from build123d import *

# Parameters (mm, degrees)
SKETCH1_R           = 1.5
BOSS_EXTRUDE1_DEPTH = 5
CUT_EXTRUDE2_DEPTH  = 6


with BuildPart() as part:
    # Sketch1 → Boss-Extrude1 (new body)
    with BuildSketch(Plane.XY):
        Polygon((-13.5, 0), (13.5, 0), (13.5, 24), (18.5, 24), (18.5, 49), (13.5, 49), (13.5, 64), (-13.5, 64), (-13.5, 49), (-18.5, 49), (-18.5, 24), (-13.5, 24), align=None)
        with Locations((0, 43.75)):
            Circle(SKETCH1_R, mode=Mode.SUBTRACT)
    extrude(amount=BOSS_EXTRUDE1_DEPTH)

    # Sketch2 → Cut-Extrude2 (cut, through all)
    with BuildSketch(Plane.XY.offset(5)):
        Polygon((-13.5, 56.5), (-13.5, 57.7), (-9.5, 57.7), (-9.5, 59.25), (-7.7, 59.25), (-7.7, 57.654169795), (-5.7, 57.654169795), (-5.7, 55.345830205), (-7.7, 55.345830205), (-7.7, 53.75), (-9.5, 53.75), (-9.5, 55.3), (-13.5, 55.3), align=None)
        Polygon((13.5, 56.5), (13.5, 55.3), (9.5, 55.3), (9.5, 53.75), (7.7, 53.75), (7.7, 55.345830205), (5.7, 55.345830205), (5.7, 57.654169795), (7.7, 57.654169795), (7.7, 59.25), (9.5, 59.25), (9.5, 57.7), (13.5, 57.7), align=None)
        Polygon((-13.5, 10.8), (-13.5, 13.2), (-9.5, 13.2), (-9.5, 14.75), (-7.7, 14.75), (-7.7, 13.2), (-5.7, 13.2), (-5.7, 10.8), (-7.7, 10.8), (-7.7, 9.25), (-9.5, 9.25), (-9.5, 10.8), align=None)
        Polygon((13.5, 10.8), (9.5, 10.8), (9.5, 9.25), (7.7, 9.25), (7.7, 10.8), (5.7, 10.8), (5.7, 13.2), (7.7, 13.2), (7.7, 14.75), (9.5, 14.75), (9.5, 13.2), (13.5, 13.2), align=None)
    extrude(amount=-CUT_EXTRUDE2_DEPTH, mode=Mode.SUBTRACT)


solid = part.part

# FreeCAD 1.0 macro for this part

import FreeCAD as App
import Part
import Sketcher

doc = App.newDocument("Part")
body = doc.addObject("PartDesign::Body", "Body")

sketch1 = body.newObject("Sketcher::SketchObject", "Sketch")
sketch1.AttachmentSupport = (doc.getObject("XY_Plane"), [""])
sketch1.MapMode = "FlatFace"
sketch1.addGeometry(Part.LineSegment(App.Vector(-13.5, 0, 0), App.Vector(13.5, 0, 0)), False)
sketch1.addGeometry(Part.LineSegment(App.Vector(13.5, 0, 0), App.Vector(13.5, 24, 0)), False)
sketch1.addGeometry(Part.LineSegment(App.Vector(13.5, 24, 0), App.Vector(18.5, 24, 0)), False)
sketch1.addGeometry(Part.LineSegment(App.Vector(18.5, 24, 0), App.Vector(18.5, 49, 0)), False)
sketch1.addGeometry(Part.LineSegment(App.Vector(18.5, 49, 0), App.Vector(13.5, 49, 0)), False)
sketch1.addGeometry(Part.LineSegment(App.Vector(13.5, 49, 0), App.Vector(13.5, 64, 0)), False)
sketch1.addGeometry(Part.LineSegment(App.Vector(13.5, 64, 0), App.Vector(-13.5, 64, 0)), False)
sketch1.addGeometry(Part.LineSegment(App.Vector(-13.5, 64, 0), App.Vector(-13.5, 49, 0)), False)
sketch1.addGeometry(Part.LineSegment(App.Vector(-13.5, 49, 0), App.Vector(-18.5, 49, 0)), False)
sketch1.addGeometry(Part.LineSegment(App.Vector(-18.5, 49, 0), App.Vector(-18.5, 24, 0)), False)
sketch1.addGeometry(Part.LineSegment(App.Vector(-18.5, 24, 0), App.Vector(-13.5, 24, 0)), False)
sketch1.addGeometry(Part.LineSegment(App.Vector(-13.5, 24, 0), App.Vector(-13.5, 0, 0)), False)
sketch1.addGeometry(Part.Circle(App.Vector(0, 43.8, 0), App.Vector(0, 0, 1), 1.5), False)
sketch1.addConstraint(Sketcher.Constraint("Coincident", 0, 2, 1, 1))
sketch1.addConstraint(Sketcher.Constraint("Coincident", 1, 2, 2, 1))
sketch1.addConstraint(Sketcher.Constraint("Coincident", 2, 2, 3, 1))
sketch1.addConstraint(Sketcher.Constraint("Coincident", 3, 2, 4, 1))
sketch1.addConstraint(Sketcher.Constraint("Coincident", 4, 2, 5, 1))
sketch1.addConstraint(Sketcher.Constraint("Coincident", 5, 2, 6, 1))
sketch1.addConstraint(Sketcher.Constraint("Coincident", 6, 2, 7, 1))
sketch1.addConstraint(Sketcher.Constraint("Coincident", 7, 2, 8, 1))
sketch1.addConstraint(Sketcher.Constraint("Coincident", 8, 2, 9, 1))
sketch1.addConstraint(Sketcher.Constraint("Coincident", 9, 2, 10, 1))
sketch1.addConstraint(Sketcher.Constraint("Coincident", 10, 2, 11, 1))
sketch1.addConstraint(Sketcher.Constraint("Coincident", 11, 2, 0, 1))
sketch1.addConstraint(Sketcher.Constraint("Horizontal", 0))
sketch1.addConstraint(Sketcher.Constraint("Vertical", 1))
sketch1.addConstraint(Sketcher.Constraint("Horizontal", 2))
sketch1.addConstraint(Sketcher.Constraint("Vertical", 3))
sketch1.addConstraint(Sketcher.Constraint("Horizontal", 4))
sketch1.addConstraint(Sketcher.Constraint("Vertical", 5))
sketch1.addConstraint(Sketcher.Constraint("Horizontal", 6))
sketch1.addConstraint(Sketcher.Constraint("Vertical", 7))
sketch1.addConstraint(Sketcher.Constraint("Horizontal", 8))
sketch1.addConstraint(Sketcher.Constraint("Vertical", 9))
sketch1.addConstraint(Sketcher.Constraint("Horizontal", 10))
sketch1.addConstraint(Sketcher.Constraint("Vertical", 11))
sketch1.addConstraint(Sketcher.Constraint("Symmetric", 0, 2, 11, 2, -1, 1))
sketch1.addConstraint(Sketcher.Constraint("Symmetric", 4, 2, 7, 2, -2))
sketch1.addConstraint(Sketcher.Constraint("Symmetric", 2, 2, 9, 2, -2))
sketch1.addConstraint(Sketcher.Constraint("PointOnObject", 12, 3, -2))
sketch1.addConstraint(Sketcher.Constraint("Vertical", 1, 2, 4, 2))
sketch1.addConstraint(Sketcher.Constraint("Diameter", 12, 3.0))
sketch1.addConstraint(Sketcher.Constraint("DistanceX", 0, 1, 0, 2, 27.0))
sketch1.addConstraint(Sketcher.Constraint("DistanceX", 2, 1, 2, 2, 5.0))
sketch1.addConstraint(Sketcher.Constraint("DistanceY", 1, 1, 1, 2, 24.0))
sketch1.addConstraint(Sketcher.Constraint("DistanceY", 3, 1, 3, 2, 25.0))
sketch1.addConstraint(Sketcher.Constraint("DistanceY", 5, 1, 5, 2, 15.0))
sketch1.addConstraint(Sketcher.Constraint("DistanceY", -1, 1, 12, 3, 43.75))
pad1 = body.newObject("PartDesign::Pad", "Pad")
pad1.Profile = sketch1
pad1.Length = 5

sketch2 = body.newObject("Sketcher::SketchObject", "Sketch001")
sketch2.AttachmentSupport = (doc.getObject("XY_Plane"), [""])
sketch2.MapMode = "FlatFace"
sketch2.AttachmentOffset = App.Placement(App.Vector(0, 0, 5), App.Rotation())
sketch2.addGeometry(Part.LineSegment(App.Vector(-13.5, 57.7, 0), App.Vector(-13.5, 55.3, 0)), False)
sketch2.addGeometry(Part.LineSegment(App.Vector(-13.5, 55.3, 0), App.Vector(-9.5, 55.3, 0)), False)
sketch2.addGeometry(Part.LineSegment(App.Vector(-9.5, 55.3, 0), App.Vector(-9.5, 53.8, 0)), False)
sketch2.addGeometry(Part.LineSegment(App.Vector(-9.5, 53.8, 0), App.Vector(-7.7, 53.8, 0)), False)
sketch2.addGeometry(Part.LineSegment(App.Vector(-7.7, 53.8, 0), App.Vector(-7.7, 55.3, 0)), False)
sketch2.addGeometry(Part.LineSegment(App.Vector(-7.7, 55.3, 0), App.Vector(-5.7, 55.3, 0)), False)
sketch2.addGeometry(Part.LineSegment(App.Vector(-5.7, 55.3, 0), App.Vector(-5.7, 57.7, 0)), False)
sketch2.addGeometry(Part.LineSegment(App.Vector(-5.7, 57.7, 0), App.Vector(-7.7, 57.7, 0)), False)
sketch2.addGeometry(Part.LineSegment(App.Vector(-7.7, 57.7, 0), App.Vector(-7.7, 59.2, 0)), False)
sketch2.addGeometry(Part.LineSegment(App.Vector(-7.7, 59.2, 0), App.Vector(-9.5, 59.2, 0)), False)
sketch2.addGeometry(Part.LineSegment(App.Vector(-9.5, 59.2, 0), App.Vector(-9.5, 57.7, 0)), False)
sketch2.addGeometry(Part.LineSegment(App.Vector(-9.5, 57.7, 0), App.Vector(-13.5, 57.7, 0)), False)
sketch2.addGeometry(Part.LineSegment(App.Vector(13.5, 55.3, 0), App.Vector(13.5, 57.7, 0)), False)
sketch2.addGeometry(Part.LineSegment(App.Vector(13.5, 57.7, 0), App.Vector(9.5, 57.7, 0)), False)
sketch2.addGeometry(Part.LineSegment(App.Vector(9.5, 57.7, 0), App.Vector(9.5, 59.2, 0)), False)
sketch2.addGeometry(Part.LineSegment(App.Vector(9.5, 59.2, 0), App.Vector(7.7, 59.2, 0)), False)
sketch2.addGeometry(Part.LineSegment(App.Vector(7.7, 59.2, 0), App.Vector(7.7, 57.7, 0)), False)
sketch2.addGeometry(Part.LineSegment(App.Vector(7.7, 57.7, 0), App.Vector(5.7, 57.7, 0)), False)
sketch2.addGeometry(Part.LineSegment(App.Vector(5.7, 57.7, 0), App.Vector(5.7, 55.3, 0)), False)
sketch2.addGeometry(Part.LineSegment(App.Vector(5.7, 55.3, 0), App.Vector(7.7, 55.3, 0)), False)
sketch2.addGeometry(Part.LineSegment(App.Vector(7.7, 55.3, 0), App.Vector(7.7, 53.8, 0)), False)
sketch2.addGeometry(Part.LineSegment(App.Vector(7.7, 53.8, 0), App.Vector(9.5, 53.8, 0)), False)
sketch2.addGeometry(Part.LineSegment(App.Vector(9.5, 53.8, 0), App.Vector(9.5, 55.3, 0)), False)
sketch2.addGeometry(Part.LineSegment(App.Vector(9.5, 55.3, 0), App.Vector(13.5, 55.3, 0)), False)
sketch2.addGeometry(Part.LineSegment(App.Vector(-13.5, 13.2, 0), App.Vector(-13.5, 10.8, 0)), False)
sketch2.addGeometry(Part.LineSegment(App.Vector(-13.5, 10.8, 0), App.Vector(-9.5, 10.8, 0)), False)
sketch2.addGeometry(Part.LineSegment(App.Vector(-9.5, 10.8, 0), App.Vector(-9.5, 9.2, 0)), False)
sketch2.addGeometry(Part.LineSegment(App.Vector(-9.5, 9.2, 0), App.Vector(-7.7, 9.2, 0)), False)
sketch2.addGeometry(Part.LineSegment(App.Vector(-7.7, 9.2, 0), App.Vector(-7.7, 10.8, 0)), False)
sketch2.addGeometry(Part.LineSegment(App.Vector(-7.7, 10.8, 0), App.Vector(-5.7, 10.8, 0)), False)
sketch2.addGeometry(Part.LineSegment(App.Vector(-5.7, 10.8, 0), App.Vector(-5.7, 13.2, 0)), False)
sketch2.addGeometry(Part.LineSegment(App.Vector(-5.7, 13.2, 0), App.Vector(-7.7, 13.2, 0)), False)
sketch2.addGeometry(Part.LineSegment(App.Vector(-7.7, 13.2, 0), App.Vector(-7.7, 14.8, 0)), False)
sketch2.addGeometry(Part.LineSegment(App.Vector(-7.7, 14.8, 0), App.Vector(-9.5, 14.8, 0)), False)
sketch2.addGeometry(Part.LineSegment(App.Vector(-9.5, 14.8, 0), App.Vector(-9.5, 13.2, 0)), False)
sketch2.addGeometry(Part.LineSegment(App.Vector(-9.5, 13.2, 0), App.Vector(-13.5, 13.2, 0)), False)
sketch2.addGeometry(Part.LineSegment(App.Vector(9.5, 10.8, 0), App.Vector(13.5, 10.8, 0)), False)
sketch2.addGeometry(Part.LineSegment(App.Vector(13.5, 10.8, 0), App.Vector(13.5, 13.2, 0)), False)
sketch2.addGeometry(Part.LineSegment(App.Vector(13.5, 13.2, 0), App.Vector(9.5, 13.2, 0)), False)
sketch2.addGeometry(Part.LineSegment(App.Vector(9.5, 13.2, 0), App.Vector(9.5, 14.8, 0)), False)
sketch2.addGeometry(Part.LineSegment(App.Vector(9.5, 14.8, 0), App.Vector(7.7, 14.8, 0)), False)
sketch2.addGeometry(Part.LineSegment(App.Vector(7.7, 14.8, 0), App.Vector(7.7, 13.2, 0)), False)
sketch2.addGeometry(Part.LineSegment(App.Vector(7.7, 13.2, 0), App.Vector(5.7, 13.2, 0)), False)
sketch2.addGeometry(Part.LineSegment(App.Vector(5.7, 13.2, 0), App.Vector(5.7, 10.8, 0)), False)
sketch2.addGeometry(Part.LineSegment(App.Vector(5.7, 10.8, 0), App.Vector(7.7, 10.8, 0)), False)
sketch2.addGeometry(Part.LineSegment(App.Vector(7.7, 10.8, 0), App.Vector(7.7, 9.2, 0)), False)
sketch2.addGeometry(Part.LineSegment(App.Vector(7.7, 9.2, 0), App.Vector(9.5, 9.2, 0)), False)
sketch2.addGeometry(Part.LineSegment(App.Vector(9.5, 9.2, 0), App.Vector(9.5, 10.8, 0)), False)
sketch2.addConstraint(Sketcher.Constraint("Coincident", 0, 2, 1, 1))
sketch2.addConstraint(Sketcher.Constraint("Coincident", 1, 2, 2, 1))
sketch2.addConstraint(Sketcher.Constraint("Coincident", 2, 2, 3, 1))
sketch2.addConstraint(Sketcher.Constraint("Coincident", 3, 2, 4, 1))
sketch2.addConstraint(Sketcher.Constraint("Coincident", 4, 2, 5, 1))
sketch2.addConstraint(Sketcher.Constraint("Coincident", 5, 2, 6, 1))
sketch2.addConstraint(Sketcher.Constraint("Coincident", 6, 2, 7, 1))
sketch2.addConstraint(Sketcher.Constraint("Coincident", 7, 2, 8, 1))
sketch2.addConstraint(Sketcher.Constraint("Coincident", 8, 2, 9, 1))
sketch2.addConstraint(Sketcher.Constraint("Coincident", 9, 2, 10, 1))
sketch2.addConstraint(Sketcher.Constraint("Coincident", 10, 2, 11, 1))
sketch2.addConstraint(Sketcher.Constraint("Coincident", 11, 2, 0, 1))
sketch2.addConstraint(Sketcher.Constraint("Coincident", 12, 2, 13, 1))
sketch2.addConstraint(Sketcher.Constraint("Coincident", 13, 2, 14, 1))
sketch2.addConstraint(Sketcher.Constraint("Coincident", 14, 2, 15, 1))
sketch2.addConstraint(Sketcher.Constraint("Coincident", 15, 2, 16, 1))
sketch2.addConstraint(Sketcher.Constraint("Coincident", 16, 2, 17, 1))
sketch2.addConstraint(Sketcher.Constraint("Coincident", 17, 2, 18, 1))
sketch2.addConstraint(Sketcher.Constraint("Coincident", 18, 2, 19, 1))
sketch2.addConstraint(Sketcher.Constraint("Coincident", 19, 2, 20, 1))
sketch2.addConstraint(Sketcher.Constraint("Coincident", 20, 2, 21, 1))
sketch2.addConstraint(Sketcher.Constraint("Coincident", 21, 2, 22, 1))
sketch2.addConstraint(Sketcher.Constraint("Coincident", 22, 2, 23, 1))
sketch2.addConstraint(Sketcher.Constraint("Coincident", 23, 2, 12, 1))
sketch2.addConstraint(Sketcher.Constraint("Coincident", 24, 2, 25, 1))
sketch2.addConstraint(Sketcher.Constraint("Coincident", 25, 2, 26, 1))
sketch2.addConstraint(Sketcher.Constraint("Coincident", 26, 2, 27, 1))
sketch2.addConstraint(Sketcher.Constraint("Coincident", 27, 2, 28, 1))
sketch2.addConstraint(Sketcher.Constraint("Coincident", 28, 2, 29, 1))
sketch2.addConstraint(Sketcher.Constraint("Coincident", 29, 2, 30, 1))
sketch2.addConstraint(Sketcher.Constraint("Coincident", 30, 2, 31, 1))
sketch2.addConstraint(Sketcher.Constraint("Coincident", 31, 2, 32, 1))
sketch2.addConstraint(Sketcher.Constraint("Coincident", 32, 2, 33, 1))
sketch2.addConstraint(Sketcher.Constraint("Coincident", 33, 2, 34, 1))
sketch2.addConstraint(Sketcher.Constraint("Coincident", 34, 2, 35, 1))
sketch2.addConstraint(Sketcher.Constraint("Coincident", 35, 2, 24, 1))
sketch2.addConstraint(Sketcher.Constraint("Coincident", 36, 2, 37, 1))
sketch2.addConstraint(Sketcher.Constraint("Coincident", 37, 2, 38, 1))
sketch2.addConstraint(Sketcher.Constraint("Coincident", 38, 2, 39, 1))
sketch2.addConstraint(Sketcher.Constraint("Coincident", 39, 2, 40, 1))
sketch2.addConstraint(Sketcher.Constraint("Coincident", 40, 2, 41, 1))
sketch2.addConstraint(Sketcher.Constraint("Coincident", 41, 2, 42, 1))
sketch2.addConstraint(Sketcher.Constraint("Coincident", 42, 2, 43, 1))
sketch2.addConstraint(Sketcher.Constraint("Coincident", 43, 2, 44, 1))
sketch2.addConstraint(Sketcher.Constraint("Coincident", 44, 2, 45, 1))
sketch2.addConstraint(Sketcher.Constraint("Coincident", 45, 2, 46, 1))
sketch2.addConstraint(Sketcher.Constraint("Coincident", 46, 2, 47, 1))
sketch2.addConstraint(Sketcher.Constraint("Coincident", 47, 2, 36, 1))
sketch2.addConstraint(Sketcher.Constraint("Vertical", 0))
sketch2.addConstraint(Sketcher.Constraint("Horizontal", 1))
sketch2.addConstraint(Sketcher.Constraint("Vertical", 2))
sketch2.addConstraint(Sketcher.Constraint("Horizontal", 3))
sketch2.addConstraint(Sketcher.Constraint("Vertical", 4))
sketch2.addConstraint(Sketcher.Constraint("Horizontal", 5))
sketch2.addConstraint(Sketcher.Constraint("Vertical", 6))
sketch2.addConstraint(Sketcher.Constraint("Horizontal", 7))
sketch2.addConstraint(Sketcher.Constraint("Vertical", 8))
sketch2.addConstraint(Sketcher.Constraint("Horizontal", 9))
sketch2.addConstraint(Sketcher.Constraint("Vertical", 10))
sketch2.addConstraint(Sketcher.Constraint("Horizontal", 11))
sketch2.addConstraint(Sketcher.Constraint("Vertical", 12))
sketch2.addConstraint(Sketcher.Constraint("Horizontal", 13))
sketch2.addConstraint(Sketcher.Constraint("Vertical", 14))
sketch2.addConstraint(Sketcher.Constraint("Horizontal", 15))
sketch2.addConstraint(Sketcher.Constraint("Vertical", 16))
sketch2.addConstraint(Sketcher.Constraint("Horizontal", 17))
sketch2.addConstraint(Sketcher.Constraint("Vertical", 18))
sketch2.addConstraint(Sketcher.Constraint("Horizontal", 19))
sketch2.addConstraint(Sketcher.Constraint("Vertical", 20))
sketch2.addConstraint(Sketcher.Constraint("Horizontal", 21))
sketch2.addConstraint(Sketcher.Constraint("Vertical", 22))
sketch2.addConstraint(Sketcher.Constraint("Horizontal", 23))
sketch2.addConstraint(Sketcher.Constraint("Vertical", 24))
sketch2.addConstraint(Sketcher.Constraint("Horizontal", 25))
sketch2.addConstraint(Sketcher.Constraint("Vertical", 26))
sketch2.addConstraint(Sketcher.Constraint("Horizontal", 27))
sketch2.addConstraint(Sketcher.Constraint("Vertical", 28))
sketch2.addConstraint(Sketcher.Constraint("Horizontal", 29))
sketch2.addConstraint(Sketcher.Constraint("Vertical", 30))
sketch2.addConstraint(Sketcher.Constraint("Horizontal", 31))
sketch2.addConstraint(Sketcher.Constraint("Vertical", 32))
sketch2.addConstraint(Sketcher.Constraint("Horizontal", 33))
sketch2.addConstraint(Sketcher.Constraint("Vertical", 34))
sketch2.addConstraint(Sketcher.Constraint("Horizontal", 35))
sketch2.addConstraint(Sketcher.Constraint("Horizontal", 36))
sketch2.addConstraint(Sketcher.Constraint("Vertical", 37))
sketch2.addConstraint(Sketcher.Constraint("Horizontal", 38))
sketch2.addConstraint(Sketcher.Constraint("Vertical", 39))
sketch2.addConstraint(Sketcher.Constraint("Horizontal", 40))
sketch2.addConstraint(Sketcher.Constraint("Vertical", 41))
sketch2.addConstraint(Sketcher.Constraint("Horizontal", 42))
sketch2.addConstraint(Sketcher.Constraint("Vertical", 43))
sketch2.addConstraint(Sketcher.Constraint("Horizontal", 44))
sketch2.addConstraint(Sketcher.Constraint("Vertical", 45))
sketch2.addConstraint(Sketcher.Constraint("Horizontal", 46))
sketch2.addConstraint(Sketcher.Constraint("Vertical", 47))
sketch2.addConstraint(Sketcher.Constraint("Symmetric", 11, 2, 12, 2, -2))
sketch2.addConstraint(Sketcher.Constraint("Symmetric", 9, 2, 14, 2, -2))
sketch2.addConstraint(Sketcher.Constraint("Symmetric", 7, 2, 16, 2, -2))
sketch2.addConstraint(Sketcher.Constraint("Symmetric", 5, 2, 18, 2, -2))
sketch2.addConstraint(Sketcher.Constraint("Symmetric", 3, 2, 20, 2, -2))
sketch2.addConstraint(Sketcher.Constraint("Symmetric", 1, 2, 22, 2, -2))
sketch2.addConstraint(Sketcher.Constraint("Symmetric", 24, 2, 36, 2, -2))
sketch2.addConstraint(Sketcher.Constraint("Symmetric", 34, 2, 38, 2, -2))
sketch2.addConstraint(Sketcher.Constraint("Symmetric", 32, 2, 40, 2, -2))
sketch2.addConstraint(Sketcher.Constraint("Symmetric", 30, 2, 42, 2, -2))
sketch2.addConstraint(Sketcher.Constraint("Symmetric", 28, 2, 44, 2, -2))
sketch2.addConstraint(Sketcher.Constraint("Symmetric", 26, 2, 46, 2, -2))
sketch2.addConstraint(Sketcher.Constraint("Horizontal", 25, 2, 28, 2))
sketch2.addConstraint(Sketcher.Constraint("Horizontal", 31, 2, 34, 2))
sketch2.addConstraint(Sketcher.Constraint("Vertical", 4, 2, 7, 2))
sketch2.addConstraint(Sketcher.Constraint("Vertical", 2, 2, 9, 2))
sketch2.addConstraint(Sketcher.Constraint("Vertical", 11, 2, 24, 2))
sketch2.addConstraint(Sketcher.Constraint("Vertical", 10, 2, 25, 2))
sketch2.addConstraint(Sketcher.Constraint("Vertical", 8, 2, 27, 2))
sketch2.addConstraint(Sketcher.Constraint("Vertical", 6, 2, 29, 2))
sketch2.addConstraint(Sketcher.Constraint("Vertical", 28, 2, 31, 2))
sketch2.addConstraint(Sketcher.Constraint("Vertical", 26, 2, 33, 2))
sketch2.addConstraint(Sketcher.Constraint("Equal", 4, 8))
sketch2.addConstraint(Sketcher.Constraint("Equal", 2, 10))
sketch2.addConstraint(Sketcher.Constraint("Equal", 12, 24))
sketch2.addConstraint(Sketcher.Constraint("Equal", 22, 26))
sketch2.addConstraint(Sketcher.Constraint("Equal", 28, 32))
sketch2.addConstraint(Sketcher.Constraint("DistanceX", 1, 1, 1, 2, 4.0))
sketch2.addConstraint(Sketcher.Constraint("DistanceX", 5, 1, 5, 2, 2.0))
sketch2.addConstraint(Sketcher.Constraint("DistanceX", 3, 1, 3, 2, 1.8))
sketch2.addConstraint(Sketcher.Constraint("DistanceY", 0, 2, 0, 1, 2.4))
sketch2.addConstraint(Sketcher.Constraint("DistanceY", 2, 2, 2, 1, 1.55))
sketch2.addConstraint(Sketcher.Constraint("DistanceX", 0, 2, -1, 1, 13.5))
sketch2.addConstraint(Sketcher.Constraint("DistanceY", -1, 1, 0, 2, 55.3))
sketch2.addConstraint(Sketcher.Constraint("DistanceY", -1, 1, 24, 2, 10.8))
sketch2.addConstraint(Sketcher.Constraint("DistanceY", 4, 1, 4, 2, 1.59583))
pocket1 = body.newObject("PartDesign::Pocket", "Pocket")
pocket1.Profile = sketch2
pocket1.Type = "ThroughAll"

doc.recompute()
